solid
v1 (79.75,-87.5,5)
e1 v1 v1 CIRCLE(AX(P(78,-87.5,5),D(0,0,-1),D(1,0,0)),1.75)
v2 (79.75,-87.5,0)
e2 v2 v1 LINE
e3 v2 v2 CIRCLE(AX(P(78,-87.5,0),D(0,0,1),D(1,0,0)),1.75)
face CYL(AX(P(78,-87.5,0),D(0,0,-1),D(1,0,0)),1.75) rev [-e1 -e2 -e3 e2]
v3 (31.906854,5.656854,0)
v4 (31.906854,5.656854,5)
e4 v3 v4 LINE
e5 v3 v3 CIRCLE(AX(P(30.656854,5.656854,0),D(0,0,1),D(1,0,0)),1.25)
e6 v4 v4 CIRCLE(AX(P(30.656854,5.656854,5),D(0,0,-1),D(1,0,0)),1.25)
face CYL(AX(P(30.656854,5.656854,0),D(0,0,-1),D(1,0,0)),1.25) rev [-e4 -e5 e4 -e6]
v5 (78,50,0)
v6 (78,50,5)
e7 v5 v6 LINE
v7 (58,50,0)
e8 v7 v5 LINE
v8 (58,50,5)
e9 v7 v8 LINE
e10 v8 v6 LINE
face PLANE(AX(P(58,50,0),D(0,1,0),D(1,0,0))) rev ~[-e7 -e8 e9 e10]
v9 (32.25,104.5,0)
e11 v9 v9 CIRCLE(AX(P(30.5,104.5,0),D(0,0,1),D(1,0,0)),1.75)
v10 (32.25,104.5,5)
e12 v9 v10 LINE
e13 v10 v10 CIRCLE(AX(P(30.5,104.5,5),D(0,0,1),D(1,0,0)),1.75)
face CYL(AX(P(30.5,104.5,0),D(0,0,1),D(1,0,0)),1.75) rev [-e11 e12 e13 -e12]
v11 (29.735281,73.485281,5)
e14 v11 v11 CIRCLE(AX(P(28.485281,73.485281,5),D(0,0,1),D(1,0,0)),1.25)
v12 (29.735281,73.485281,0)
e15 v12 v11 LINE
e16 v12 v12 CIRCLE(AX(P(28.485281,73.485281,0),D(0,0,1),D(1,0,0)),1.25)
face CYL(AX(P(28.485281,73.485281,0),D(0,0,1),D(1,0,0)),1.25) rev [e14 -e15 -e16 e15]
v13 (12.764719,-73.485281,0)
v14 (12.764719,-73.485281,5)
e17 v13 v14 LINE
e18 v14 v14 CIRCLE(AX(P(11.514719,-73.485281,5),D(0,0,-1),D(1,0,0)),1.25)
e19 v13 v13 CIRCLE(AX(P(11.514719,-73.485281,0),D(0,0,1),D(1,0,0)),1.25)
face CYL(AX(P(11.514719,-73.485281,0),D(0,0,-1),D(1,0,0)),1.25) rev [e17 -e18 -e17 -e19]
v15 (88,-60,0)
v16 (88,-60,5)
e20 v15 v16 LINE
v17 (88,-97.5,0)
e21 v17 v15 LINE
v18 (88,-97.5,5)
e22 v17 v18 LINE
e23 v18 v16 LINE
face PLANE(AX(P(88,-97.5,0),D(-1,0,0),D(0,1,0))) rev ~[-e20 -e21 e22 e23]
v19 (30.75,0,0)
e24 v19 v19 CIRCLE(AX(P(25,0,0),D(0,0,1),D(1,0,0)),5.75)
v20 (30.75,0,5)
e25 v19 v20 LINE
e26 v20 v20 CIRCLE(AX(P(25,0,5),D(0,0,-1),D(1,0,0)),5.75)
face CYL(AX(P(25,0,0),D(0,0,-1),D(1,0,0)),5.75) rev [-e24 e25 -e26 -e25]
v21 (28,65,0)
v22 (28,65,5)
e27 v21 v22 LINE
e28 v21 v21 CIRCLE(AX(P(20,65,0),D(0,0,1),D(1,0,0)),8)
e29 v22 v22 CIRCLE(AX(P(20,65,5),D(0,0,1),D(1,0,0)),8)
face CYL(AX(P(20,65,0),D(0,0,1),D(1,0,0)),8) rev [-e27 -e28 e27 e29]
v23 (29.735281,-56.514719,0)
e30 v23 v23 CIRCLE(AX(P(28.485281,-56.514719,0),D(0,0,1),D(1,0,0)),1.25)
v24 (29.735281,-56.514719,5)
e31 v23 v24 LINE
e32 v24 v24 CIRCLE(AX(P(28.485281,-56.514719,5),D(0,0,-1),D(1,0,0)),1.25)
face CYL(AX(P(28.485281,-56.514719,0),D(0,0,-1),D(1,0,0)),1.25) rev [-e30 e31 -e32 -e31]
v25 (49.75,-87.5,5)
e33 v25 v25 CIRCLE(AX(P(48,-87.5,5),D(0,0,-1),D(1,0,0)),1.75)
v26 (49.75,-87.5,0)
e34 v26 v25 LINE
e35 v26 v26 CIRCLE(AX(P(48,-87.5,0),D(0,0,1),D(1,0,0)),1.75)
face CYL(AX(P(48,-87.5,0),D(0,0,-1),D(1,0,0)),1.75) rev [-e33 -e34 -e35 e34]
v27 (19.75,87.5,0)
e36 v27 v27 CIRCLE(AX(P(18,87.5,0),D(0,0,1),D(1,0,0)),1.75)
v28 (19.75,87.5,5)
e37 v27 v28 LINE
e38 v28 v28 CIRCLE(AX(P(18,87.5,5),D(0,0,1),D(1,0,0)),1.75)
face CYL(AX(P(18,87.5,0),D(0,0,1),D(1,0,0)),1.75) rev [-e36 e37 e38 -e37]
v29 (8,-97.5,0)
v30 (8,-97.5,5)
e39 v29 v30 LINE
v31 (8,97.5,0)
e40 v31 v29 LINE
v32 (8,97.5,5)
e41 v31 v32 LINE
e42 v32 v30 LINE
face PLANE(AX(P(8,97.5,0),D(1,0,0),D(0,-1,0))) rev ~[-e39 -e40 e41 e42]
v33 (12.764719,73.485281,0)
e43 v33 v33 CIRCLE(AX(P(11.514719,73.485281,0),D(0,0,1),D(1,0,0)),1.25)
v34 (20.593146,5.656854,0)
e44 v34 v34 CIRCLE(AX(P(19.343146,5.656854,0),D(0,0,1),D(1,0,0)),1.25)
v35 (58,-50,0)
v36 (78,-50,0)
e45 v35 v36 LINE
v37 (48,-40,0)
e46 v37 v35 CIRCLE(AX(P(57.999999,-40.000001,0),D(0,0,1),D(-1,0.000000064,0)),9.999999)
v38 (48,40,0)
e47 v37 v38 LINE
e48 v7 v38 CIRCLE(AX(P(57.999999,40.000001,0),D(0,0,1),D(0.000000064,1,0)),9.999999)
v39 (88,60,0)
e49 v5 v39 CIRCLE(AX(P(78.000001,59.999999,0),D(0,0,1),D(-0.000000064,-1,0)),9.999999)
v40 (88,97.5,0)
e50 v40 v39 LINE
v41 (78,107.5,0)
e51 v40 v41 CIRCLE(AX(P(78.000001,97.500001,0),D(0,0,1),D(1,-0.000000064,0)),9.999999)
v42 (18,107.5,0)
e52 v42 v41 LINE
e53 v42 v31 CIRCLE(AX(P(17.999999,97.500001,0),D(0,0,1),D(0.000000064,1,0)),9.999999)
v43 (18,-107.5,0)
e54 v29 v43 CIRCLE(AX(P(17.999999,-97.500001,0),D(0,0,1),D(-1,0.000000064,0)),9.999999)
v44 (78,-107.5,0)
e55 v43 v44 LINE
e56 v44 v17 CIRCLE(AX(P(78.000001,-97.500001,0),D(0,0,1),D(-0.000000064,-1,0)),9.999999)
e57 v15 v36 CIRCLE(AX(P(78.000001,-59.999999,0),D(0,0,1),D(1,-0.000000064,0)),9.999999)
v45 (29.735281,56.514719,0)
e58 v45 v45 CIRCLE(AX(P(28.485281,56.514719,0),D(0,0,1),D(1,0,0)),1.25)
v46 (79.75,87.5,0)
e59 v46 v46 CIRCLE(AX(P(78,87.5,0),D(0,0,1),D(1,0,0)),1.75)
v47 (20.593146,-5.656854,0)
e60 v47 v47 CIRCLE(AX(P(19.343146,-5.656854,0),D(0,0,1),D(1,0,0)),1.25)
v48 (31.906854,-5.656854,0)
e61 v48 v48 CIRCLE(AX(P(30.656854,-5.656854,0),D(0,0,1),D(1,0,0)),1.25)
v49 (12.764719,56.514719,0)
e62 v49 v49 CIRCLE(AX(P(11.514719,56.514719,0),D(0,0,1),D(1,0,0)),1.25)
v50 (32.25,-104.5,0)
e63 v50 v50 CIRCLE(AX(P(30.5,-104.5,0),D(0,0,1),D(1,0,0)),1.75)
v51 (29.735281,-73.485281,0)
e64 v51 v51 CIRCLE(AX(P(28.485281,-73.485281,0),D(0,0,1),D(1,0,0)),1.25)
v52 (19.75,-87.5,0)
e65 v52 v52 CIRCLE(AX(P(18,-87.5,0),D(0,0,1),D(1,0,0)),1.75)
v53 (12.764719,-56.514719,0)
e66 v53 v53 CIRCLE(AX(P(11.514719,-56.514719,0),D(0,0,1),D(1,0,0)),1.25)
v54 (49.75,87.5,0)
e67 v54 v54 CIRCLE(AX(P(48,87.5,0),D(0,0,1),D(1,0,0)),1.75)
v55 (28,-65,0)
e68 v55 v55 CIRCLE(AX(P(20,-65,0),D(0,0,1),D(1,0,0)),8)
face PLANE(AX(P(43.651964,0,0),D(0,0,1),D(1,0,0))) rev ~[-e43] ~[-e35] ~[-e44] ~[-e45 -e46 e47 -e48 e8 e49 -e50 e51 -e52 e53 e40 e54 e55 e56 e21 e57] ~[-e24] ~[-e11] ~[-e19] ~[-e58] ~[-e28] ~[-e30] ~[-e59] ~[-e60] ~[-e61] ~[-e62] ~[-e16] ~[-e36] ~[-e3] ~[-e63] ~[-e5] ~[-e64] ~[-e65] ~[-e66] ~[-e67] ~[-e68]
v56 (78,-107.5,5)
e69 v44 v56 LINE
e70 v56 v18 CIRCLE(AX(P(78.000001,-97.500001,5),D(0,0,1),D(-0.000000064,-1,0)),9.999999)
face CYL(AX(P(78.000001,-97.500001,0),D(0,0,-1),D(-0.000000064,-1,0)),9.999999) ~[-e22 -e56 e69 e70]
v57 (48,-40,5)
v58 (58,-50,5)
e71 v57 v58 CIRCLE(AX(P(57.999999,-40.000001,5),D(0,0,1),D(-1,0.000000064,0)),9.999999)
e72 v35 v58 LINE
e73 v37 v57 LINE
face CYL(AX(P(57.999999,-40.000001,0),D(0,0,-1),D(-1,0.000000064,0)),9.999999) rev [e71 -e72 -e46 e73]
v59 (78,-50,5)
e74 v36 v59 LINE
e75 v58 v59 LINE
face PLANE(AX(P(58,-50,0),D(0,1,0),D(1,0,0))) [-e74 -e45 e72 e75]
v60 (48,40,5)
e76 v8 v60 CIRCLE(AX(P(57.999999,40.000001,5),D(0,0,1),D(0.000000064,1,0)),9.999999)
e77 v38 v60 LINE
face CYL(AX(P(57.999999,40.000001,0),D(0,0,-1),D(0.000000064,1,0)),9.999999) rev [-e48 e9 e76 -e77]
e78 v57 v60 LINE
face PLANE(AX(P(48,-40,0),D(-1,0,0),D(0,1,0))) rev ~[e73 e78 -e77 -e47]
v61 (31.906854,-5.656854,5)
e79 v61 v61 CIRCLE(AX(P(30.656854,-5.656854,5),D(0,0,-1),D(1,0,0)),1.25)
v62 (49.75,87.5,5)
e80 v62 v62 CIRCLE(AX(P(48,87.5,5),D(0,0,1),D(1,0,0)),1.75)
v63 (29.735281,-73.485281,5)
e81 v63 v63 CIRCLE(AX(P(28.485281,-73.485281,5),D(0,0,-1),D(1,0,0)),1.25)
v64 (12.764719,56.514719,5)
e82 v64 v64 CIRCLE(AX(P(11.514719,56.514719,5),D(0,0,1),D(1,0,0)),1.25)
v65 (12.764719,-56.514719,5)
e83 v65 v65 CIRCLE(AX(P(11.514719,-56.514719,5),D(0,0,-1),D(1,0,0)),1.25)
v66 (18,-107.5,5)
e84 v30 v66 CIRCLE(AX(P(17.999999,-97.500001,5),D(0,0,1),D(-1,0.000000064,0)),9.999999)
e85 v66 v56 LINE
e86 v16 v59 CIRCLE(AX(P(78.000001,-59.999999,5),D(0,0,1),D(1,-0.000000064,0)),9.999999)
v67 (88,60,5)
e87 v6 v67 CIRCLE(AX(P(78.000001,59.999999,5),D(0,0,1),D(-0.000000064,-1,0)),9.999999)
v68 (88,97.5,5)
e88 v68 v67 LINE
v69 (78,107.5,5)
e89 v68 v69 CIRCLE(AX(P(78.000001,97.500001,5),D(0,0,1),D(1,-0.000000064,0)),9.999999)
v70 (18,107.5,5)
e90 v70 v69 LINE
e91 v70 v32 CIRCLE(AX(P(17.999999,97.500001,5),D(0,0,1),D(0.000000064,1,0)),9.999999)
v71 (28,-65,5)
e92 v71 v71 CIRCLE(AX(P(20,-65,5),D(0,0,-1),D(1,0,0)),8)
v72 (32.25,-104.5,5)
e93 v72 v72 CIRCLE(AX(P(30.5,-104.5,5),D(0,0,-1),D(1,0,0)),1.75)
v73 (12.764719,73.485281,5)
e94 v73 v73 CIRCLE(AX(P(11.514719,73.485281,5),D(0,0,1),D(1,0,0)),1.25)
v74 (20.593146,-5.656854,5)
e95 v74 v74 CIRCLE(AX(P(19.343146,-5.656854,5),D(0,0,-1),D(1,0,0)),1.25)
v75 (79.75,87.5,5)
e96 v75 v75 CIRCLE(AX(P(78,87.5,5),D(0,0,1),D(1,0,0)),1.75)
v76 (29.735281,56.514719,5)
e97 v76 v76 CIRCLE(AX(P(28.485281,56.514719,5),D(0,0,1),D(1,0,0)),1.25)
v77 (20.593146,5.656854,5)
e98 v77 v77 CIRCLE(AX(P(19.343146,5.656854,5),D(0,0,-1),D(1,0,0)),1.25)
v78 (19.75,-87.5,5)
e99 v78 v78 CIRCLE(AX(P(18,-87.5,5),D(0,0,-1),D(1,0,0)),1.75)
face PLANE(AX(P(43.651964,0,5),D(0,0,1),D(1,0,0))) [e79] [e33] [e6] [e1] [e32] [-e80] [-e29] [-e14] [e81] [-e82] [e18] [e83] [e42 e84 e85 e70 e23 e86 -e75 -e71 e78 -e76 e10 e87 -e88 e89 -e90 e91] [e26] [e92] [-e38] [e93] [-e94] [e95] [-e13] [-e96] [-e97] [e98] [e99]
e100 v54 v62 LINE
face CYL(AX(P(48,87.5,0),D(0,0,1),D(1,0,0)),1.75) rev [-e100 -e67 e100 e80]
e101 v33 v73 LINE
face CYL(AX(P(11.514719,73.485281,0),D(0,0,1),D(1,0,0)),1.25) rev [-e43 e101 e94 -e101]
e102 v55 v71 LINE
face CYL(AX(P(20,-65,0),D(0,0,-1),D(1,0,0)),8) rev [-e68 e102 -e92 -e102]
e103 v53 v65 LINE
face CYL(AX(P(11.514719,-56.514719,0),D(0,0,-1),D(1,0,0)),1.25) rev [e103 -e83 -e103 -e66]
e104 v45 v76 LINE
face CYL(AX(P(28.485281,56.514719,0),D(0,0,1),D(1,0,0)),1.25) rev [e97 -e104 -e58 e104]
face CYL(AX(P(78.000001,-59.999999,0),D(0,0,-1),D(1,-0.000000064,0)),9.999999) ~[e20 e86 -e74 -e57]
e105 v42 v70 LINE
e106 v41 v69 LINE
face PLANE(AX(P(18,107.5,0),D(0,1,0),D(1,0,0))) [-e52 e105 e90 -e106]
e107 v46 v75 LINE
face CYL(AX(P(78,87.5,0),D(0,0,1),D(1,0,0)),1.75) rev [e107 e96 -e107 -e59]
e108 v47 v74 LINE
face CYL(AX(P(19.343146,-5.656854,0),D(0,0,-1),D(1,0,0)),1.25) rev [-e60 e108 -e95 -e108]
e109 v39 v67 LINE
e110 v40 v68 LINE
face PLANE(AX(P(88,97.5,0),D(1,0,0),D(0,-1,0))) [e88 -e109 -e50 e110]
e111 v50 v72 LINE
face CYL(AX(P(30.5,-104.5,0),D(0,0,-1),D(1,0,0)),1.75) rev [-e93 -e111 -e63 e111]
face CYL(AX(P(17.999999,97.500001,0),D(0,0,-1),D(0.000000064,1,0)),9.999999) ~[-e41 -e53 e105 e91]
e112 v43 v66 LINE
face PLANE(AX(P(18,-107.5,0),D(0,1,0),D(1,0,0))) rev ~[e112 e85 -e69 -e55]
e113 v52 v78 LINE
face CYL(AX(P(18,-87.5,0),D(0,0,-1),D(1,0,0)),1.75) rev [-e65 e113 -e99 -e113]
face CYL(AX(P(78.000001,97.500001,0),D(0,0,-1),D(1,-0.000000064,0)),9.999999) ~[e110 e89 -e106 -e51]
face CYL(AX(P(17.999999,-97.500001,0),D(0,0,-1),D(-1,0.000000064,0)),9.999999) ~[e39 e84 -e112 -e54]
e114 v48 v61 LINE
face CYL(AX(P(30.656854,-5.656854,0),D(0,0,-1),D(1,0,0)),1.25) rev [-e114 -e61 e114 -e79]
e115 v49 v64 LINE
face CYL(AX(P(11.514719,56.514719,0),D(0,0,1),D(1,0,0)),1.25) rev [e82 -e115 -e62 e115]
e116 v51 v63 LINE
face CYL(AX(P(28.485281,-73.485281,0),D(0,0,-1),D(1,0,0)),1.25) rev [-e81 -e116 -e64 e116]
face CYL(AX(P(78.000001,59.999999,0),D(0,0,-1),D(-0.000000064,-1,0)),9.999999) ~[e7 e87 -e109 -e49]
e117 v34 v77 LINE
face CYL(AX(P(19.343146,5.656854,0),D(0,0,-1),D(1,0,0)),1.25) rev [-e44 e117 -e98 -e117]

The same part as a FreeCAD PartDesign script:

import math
import FreeCAD as App
import Part
import Sketcher
Q = App.Units.Quantity

doc = App.newDocument("Part")
body = doc.addObject("PartDesign::Body", "Body")

sketch1 = body.newObject("Sketcher::SketchObject", "Sketch")
sketch1.AttachmentSupport = (doc.getObject("XY_Plane"), [""])
sketch1.MapMode = "FlatFace"
sketch1.addGeometry([
    Part.LineSegment(App.Vector(88, -98, 0), App.Vector(88, -60, 0)),
    Part.ArcOfCircle(Part.Circle(App.Vector(78, -60, 0), App.Vector(0, 0, 1), 10), math.radians(0), math.radians(90)),
    Part.LineSegment(App.Vector(78, -50, 0), App.Vector(58, -50, 0)),
    Part.ArcOfCircle(Part.Circle(App.Vector(58, -40, 0), App.Vector(0, 0, 1), 10), math.radians(180), math.radians(270)),
    Part.LineSegment(App.Vector(48, -40, 0), App.Vector(48, 40, 0)),
    Part.ArcOfCircle(Part.Circle(App.Vector(58, 40, 0), App.Vector(0, 0, 1), 10), math.radians(90), math.radians(180)),
    Part.LineSegment(App.Vector(58, 50, 0), App.Vector(78, 50, 0)),
    Part.ArcOfCircle(Part.Circle(App.Vector(78, 60, 0), App.Vector(0, 0, 1), 10), math.radians(-90), math.radians(0)),
    Part.LineSegment(App.Vector(88, 60, 0), App.Vector(88, 98, 0)),
    Part.ArcOfCircle(Part.Circle(App.Vector(78, 98, 0), App.Vector(0, 0, 1), 10), math.radians(0), math.radians(90)),
    Part.LineSegment(App.Vector(78, 108, 0), App.Vector(18, 108, 0)),
    Part.ArcOfCircle(Part.Circle(App.Vector(18, 98, 0), App.Vector(0, 0, 1), 10), math.radians(90), math.radians(180)),
    Part.LineSegment(App.Vector(8, 98, 0), App.Vector(8, -98, 0)),
    Part.ArcOfCircle(Part.Circle(App.Vector(18, -98, 0), App.Vector(0, 0, 1), 10), math.radians(180), math.radians(270)),
    Part.LineSegment(App.Vector(18, -108, 0), App.Vector(78, -108, 0)),
    Part.ArcOfCircle(Part.Circle(App.Vector(78, -98, 0), App.Vector(0, 0, 1), 10), math.radians(-90), math.radians(0)),
], False)
sketch1.addConstraint([
    Sketcher.Constraint("Tangent", 0, 2, 1, 1),
    Sketcher.Constraint("Tangent", 1, 2, 2, 1),
    Sketcher.Constraint("Tangent", 2, 2, 3, 2),
    Sketcher.Constraint("Tangent", 3, 1, 4, 1),
    Sketcher.Constraint("Tangent", 4, 2, 5, 2),
    Sketcher.Constraint("Tangent", 5, 1, 6, 1),
    Sketcher.Constraint("Tangent", 6, 2, 7, 1),
    Sketcher.Constraint("Tangent", 7, 2, 8, 1),
    Sketcher.Constraint("Tangent", 8, 2, 9, 1),
    Sketcher.Constraint("Tangent", 9, 2, 10, 1),
    Sketcher.Constraint("Tangent", 10, 2, 11, 1),
    Sketcher.Constraint("Tangent", 11, 2, 12, 1),
    Sketcher.Constraint("Tangent", 12, 2, 13, 1),
    Sketcher.Constraint("Tangent", 13, 2, 14, 1),
    Sketcher.Constraint("Tangent", 14, 2, 15, 1),
    Sketcher.Constraint("Tangent", 15, 2, 0, 1),
    Sketcher.Constraint("Vertical", 0),
    Sketcher.Constraint("Horizontal", 2),
    Sketcher.Constraint("Vertical", 4),
    Sketcher.Constraint("Horizontal", 6),
    Sketcher.Constraint("Vertical", 8),
    Sketcher.Constraint("Horizontal", 10),
    Sketcher.Constraint("Vertical", 12),
    Sketcher.Constraint("Horizontal", 14),
    Sketcher.Constraint("Equal", 1, 3),
    Sketcher.Constraint("Equal", 3, 5),
    Sketcher.Constraint("Equal", 5, 7),
    Sketcher.Constraint("Equal", 7, 9),
    Sketcher.Constraint("Equal", 9, 11),
    Sketcher.Constraint("Equal", 11, 13),
    Sketcher.Constraint("Equal", 13, 15),
    Sketcher.Constraint("Symmetric", 1, 3, 7, 3, -1),
    Sketcher.Constraint("Equal", 0, 8),
    Sketcher.Constraint("Radius", 1, Q("9.999999 mm")),
    Sketcher.Constraint("DistanceX", 2, 2, 2, 1, Q("20 mm")),
    Sketcher.Constraint("DistanceX", 10, 2, 10, 1, Q("60 mm")),
    Sketcher.Constraint("DistanceY", 4, 1, 4, 2, Q("80 mm")),
    Sketcher.Constraint("DistanceY", 12, 2, 12, 1, Q("195 mm")),
    Sketcher.Constraint("DistanceX", -1, 1, 1, 3, Q("78.000001 mm")),
])
pad1 = body.newObject("PartDesign::Pad", "Pad")
pad1.Profile = sketch1
pad1.Length = 5

sketch2 = body.newObject("Sketcher::SketchObject", "Sketch001")
sketch2.AttachmentSupport = (doc.getObject("XY_Plane"), [""])
sketch2.MapMode = "FlatFace"
sketch2.addGeometry([
    Part.Circle(App.Vector(20, -65, 0), App.Vector(0, 0, 1), 8),
    Part.Circle(App.Vector(11.5, -56.5, 0), App.Vector(0, 0, 1), 1.2),
    Part.Circle(App.Vector(11.5, -73.5, 0), App.Vector(0, 0, 1), 1.2),
    Part.Circle(App.Vector(28.5, -73.5, 0), App.Vector(0, 0, 1), 1.2),
    Part.Circle(App.Vector(28.5, -56.5, 0), App.Vector(0, 0, 1), 1.2),
], False)
sketch2.addConstraint([
    Sketcher.Constraint("Equal", 1, 2),
    Sketcher.Constraint("Equal", 2, 3),
    Sketcher.Constraint("Equal", 3, 4),
    Sketcher.Constraint("Horizontal", 2, 3, 3, 3),
    Sketcher.Constraint("Horizontal", 1, 3, 4, 3),
    Sketcher.Constraint("Vertical", 1, 3, 2, 3),
    Sketcher.Constraint("Vertical", 3, 3, 4, 3),
    Sketcher.Constraint("Diameter", 0, Q("16 mm")),
    Sketcher.Constraint("Diameter", 1, Q("2.5 mm")),
    Sketcher.Constraint("DistanceX", -1, 1, 0, 3, Q("20 mm")),
    Sketcher.Constraint("DistanceY", 0, 3, -1, 1, Q("65 mm")),
    Sketcher.Constraint("DistanceX", -1, 1, 1, 3, Q("11.514719 mm")),
    Sketcher.Constraint("DistanceY", 1, 3, -1, 1, Q("56.514719 mm")),
    Sketcher.Constraint("DistanceY", 2, 3, -1, 1, Q("73.485281 mm")),
    Sketcher.Constraint("DistanceX", -1, 1, 3, 3, Q("28.485281 mm")),
])
pocket1 = body.newObject("PartDesign::Pocket", "Pocket")
pocket1.Profile = sketch2
pocket1.Type = "ThroughAll"
pocket1.Midplane = True
doc.recompute()

mirrored = body.newObject("PartDesign::Mirrored", "Mirrored")
mirrored.Originals = [pocket1]
mirrored.MirrorPlane = (doc.getObject("XZ_Plane"), [""])
body.Tip = mirrored

sketch3 = body.newObject("Sketcher::SketchObject", "Sketch002")
sketch3.AttachmentSupport = (doc.getObject("XY_Plane"), [""])
sketch3.MapMode = "FlatFace"
sketch3.addGeometry([
    Part.Circle(App.Vector(78, -87.5, 0), App.Vector(0, 0, 1), 1.8),
    Part.Circle(App.Vector(48, -87.5, 0), App.Vector(0, 0, 1), 1.8),
    Part.Circle(App.Vector(18, -87.5, 0), App.Vector(0, 0, 1), 1.8),
], False)
sketch3.addConstraint([
    Sketcher.Constraint("Equal", 0, 1),
    Sketcher.Constraint("Equal", 1, 2),
    Sketcher.Constraint("Horizontal", 0, 3, 1, 3),
    Sketcher.Constraint("Horizontal", 1, 3, 2, 3),
    Sketcher.Constraint("Diameter", 0, Q("3.5 mm")),
    Sketcher.Constraint("DistanceX", -1, 1, 0, 3, Q("78 mm")),
    Sketcher.Constraint("DistanceX", -1, 1, 1, 3, Q("48 mm")),
    Sketcher.Constraint("DistanceX", -1, 1, 2, 3, Q("18 mm")),
    Sketcher.Constraint("DistanceY", 0, 3, -1, 1, Q("87.5 mm")),
])
pocket2 = body.newObject("PartDesign::Pocket", "Pocket001")
pocket2.Profile = sketch3
pocket2.Type = "ThroughAll"
pocket2.Midplane = True
doc.recompute()

mirrored2 = body.newObject("PartDesign::Mirrored", "Mirrored001")
mirrored2.Originals = [pocket2]
mirrored2.MirrorPlane = (doc.getObject("XZ_Plane"), [""])
body.Tip = mirrored2

sketch4 = body.newObject("Sketcher::SketchObject", "Sketch003")
sketch4.AttachmentSupport = (doc.getObject("XY_Plane"), [""])
sketch4.MapMode = "FlatFace"
sketch4.addGeometry(Part.Circle(App.Vector(30.5, -104.5, 0), App.Vector(0, 0, 1), 1.8), False)
sketch4.addConstraint([
    Sketcher.Constraint("Diameter", 0, Q("3.5 mm")),
    Sketcher.Constraint("DistanceX", -1, 1, 0, 3, Q("30.5 mm")),
    Sketcher.Constraint("DistanceY", 0, 3, -1, 1, Q("104.5 mm")),
])
pocket3 = body.newObject("PartDesign::Pocket", "Pocket002")
pocket3.Profile = sketch4
pocket3.Type = "ThroughAll"
pocket3.Midplane = True
doc.recompute()

mirrored3 = body.newObject("PartDesign::Mirrored", "Mirrored002")
mirrored3.Originals = [pocket3]
mirrored3.MirrorPlane = (doc.getObject("XZ_Plane"), [""])
body.Tip = mirrored3

sketch5 = body.newObject("Sketcher::SketchObject", "Sketch004")
sketch5.AttachmentSupport = (doc.getObject("XY_Plane"), [""])
sketch5.MapMode = "FlatFace"
sketch5.addGeometry([
    Part.Circle(App.Vector(25, 0, 0), App.Vector(0, 0, 1), 5.8),
    Part.Circle(App.Vector(30.7, -5.7, 0), App.Vector(0, 0, 1), 1.2),
    Part.Circle(App.Vector(30.7, 5.7, 0), App.Vector(0, 0, 1), 1.2),
    Part.Circle(App.Vector(19.3, 5.7, 0), App.Vector(0, 0, 1), 1.2),
    Part.Circle(App.Vector(19.3, -5.7, 0), App.Vector(0, 0, 1), 1.2),
], False)
sketch5.addConstraint([
    Sketcher.Constraint("Equal", 1, 2),
    Sketcher.Constraint("Equal", 2, 3),
    Sketcher.Constraint("Equal", 3, 4),
    Sketcher.Constraint("Symmetric", 1, 3, 2, 3, -1),
    Sketcher.Constraint("Symmetric", 3, 3, 4, 3, -1),
    Sketcher.Constraint("PointOnObject", 0, 3, -1),
    Sketcher.Constraint("Horizontal", 2, 3, 3, 3),
    Sketcher.Constraint("Diameter", 0, Q("11.5 mm")),
    Sketcher.Constraint("Diameter", 1, Q("2.5 mm")),
    Sketcher.Constraint("DistanceX", -1, 1, 0, 3, Q("25 mm")),
    Sketcher.Constraint("DistanceX", -1, 1, 1, 3, Q("30.656854 mm")),
    Sketcher.Constraint("DistanceY", 1, 3, -1, 1, Q("5.656854 mm")),
    Sketcher.Constraint("DistanceX", -1, 1, 3, 3, Q("19.343146 mm")),
])
pocket4 = body.newObject("PartDesign::Pocket", "Pocket003")
pocket4.Profile = sketch5
pocket4.Type = "ThroughAll"
pocket4.Midplane = True

doc.recompute()
